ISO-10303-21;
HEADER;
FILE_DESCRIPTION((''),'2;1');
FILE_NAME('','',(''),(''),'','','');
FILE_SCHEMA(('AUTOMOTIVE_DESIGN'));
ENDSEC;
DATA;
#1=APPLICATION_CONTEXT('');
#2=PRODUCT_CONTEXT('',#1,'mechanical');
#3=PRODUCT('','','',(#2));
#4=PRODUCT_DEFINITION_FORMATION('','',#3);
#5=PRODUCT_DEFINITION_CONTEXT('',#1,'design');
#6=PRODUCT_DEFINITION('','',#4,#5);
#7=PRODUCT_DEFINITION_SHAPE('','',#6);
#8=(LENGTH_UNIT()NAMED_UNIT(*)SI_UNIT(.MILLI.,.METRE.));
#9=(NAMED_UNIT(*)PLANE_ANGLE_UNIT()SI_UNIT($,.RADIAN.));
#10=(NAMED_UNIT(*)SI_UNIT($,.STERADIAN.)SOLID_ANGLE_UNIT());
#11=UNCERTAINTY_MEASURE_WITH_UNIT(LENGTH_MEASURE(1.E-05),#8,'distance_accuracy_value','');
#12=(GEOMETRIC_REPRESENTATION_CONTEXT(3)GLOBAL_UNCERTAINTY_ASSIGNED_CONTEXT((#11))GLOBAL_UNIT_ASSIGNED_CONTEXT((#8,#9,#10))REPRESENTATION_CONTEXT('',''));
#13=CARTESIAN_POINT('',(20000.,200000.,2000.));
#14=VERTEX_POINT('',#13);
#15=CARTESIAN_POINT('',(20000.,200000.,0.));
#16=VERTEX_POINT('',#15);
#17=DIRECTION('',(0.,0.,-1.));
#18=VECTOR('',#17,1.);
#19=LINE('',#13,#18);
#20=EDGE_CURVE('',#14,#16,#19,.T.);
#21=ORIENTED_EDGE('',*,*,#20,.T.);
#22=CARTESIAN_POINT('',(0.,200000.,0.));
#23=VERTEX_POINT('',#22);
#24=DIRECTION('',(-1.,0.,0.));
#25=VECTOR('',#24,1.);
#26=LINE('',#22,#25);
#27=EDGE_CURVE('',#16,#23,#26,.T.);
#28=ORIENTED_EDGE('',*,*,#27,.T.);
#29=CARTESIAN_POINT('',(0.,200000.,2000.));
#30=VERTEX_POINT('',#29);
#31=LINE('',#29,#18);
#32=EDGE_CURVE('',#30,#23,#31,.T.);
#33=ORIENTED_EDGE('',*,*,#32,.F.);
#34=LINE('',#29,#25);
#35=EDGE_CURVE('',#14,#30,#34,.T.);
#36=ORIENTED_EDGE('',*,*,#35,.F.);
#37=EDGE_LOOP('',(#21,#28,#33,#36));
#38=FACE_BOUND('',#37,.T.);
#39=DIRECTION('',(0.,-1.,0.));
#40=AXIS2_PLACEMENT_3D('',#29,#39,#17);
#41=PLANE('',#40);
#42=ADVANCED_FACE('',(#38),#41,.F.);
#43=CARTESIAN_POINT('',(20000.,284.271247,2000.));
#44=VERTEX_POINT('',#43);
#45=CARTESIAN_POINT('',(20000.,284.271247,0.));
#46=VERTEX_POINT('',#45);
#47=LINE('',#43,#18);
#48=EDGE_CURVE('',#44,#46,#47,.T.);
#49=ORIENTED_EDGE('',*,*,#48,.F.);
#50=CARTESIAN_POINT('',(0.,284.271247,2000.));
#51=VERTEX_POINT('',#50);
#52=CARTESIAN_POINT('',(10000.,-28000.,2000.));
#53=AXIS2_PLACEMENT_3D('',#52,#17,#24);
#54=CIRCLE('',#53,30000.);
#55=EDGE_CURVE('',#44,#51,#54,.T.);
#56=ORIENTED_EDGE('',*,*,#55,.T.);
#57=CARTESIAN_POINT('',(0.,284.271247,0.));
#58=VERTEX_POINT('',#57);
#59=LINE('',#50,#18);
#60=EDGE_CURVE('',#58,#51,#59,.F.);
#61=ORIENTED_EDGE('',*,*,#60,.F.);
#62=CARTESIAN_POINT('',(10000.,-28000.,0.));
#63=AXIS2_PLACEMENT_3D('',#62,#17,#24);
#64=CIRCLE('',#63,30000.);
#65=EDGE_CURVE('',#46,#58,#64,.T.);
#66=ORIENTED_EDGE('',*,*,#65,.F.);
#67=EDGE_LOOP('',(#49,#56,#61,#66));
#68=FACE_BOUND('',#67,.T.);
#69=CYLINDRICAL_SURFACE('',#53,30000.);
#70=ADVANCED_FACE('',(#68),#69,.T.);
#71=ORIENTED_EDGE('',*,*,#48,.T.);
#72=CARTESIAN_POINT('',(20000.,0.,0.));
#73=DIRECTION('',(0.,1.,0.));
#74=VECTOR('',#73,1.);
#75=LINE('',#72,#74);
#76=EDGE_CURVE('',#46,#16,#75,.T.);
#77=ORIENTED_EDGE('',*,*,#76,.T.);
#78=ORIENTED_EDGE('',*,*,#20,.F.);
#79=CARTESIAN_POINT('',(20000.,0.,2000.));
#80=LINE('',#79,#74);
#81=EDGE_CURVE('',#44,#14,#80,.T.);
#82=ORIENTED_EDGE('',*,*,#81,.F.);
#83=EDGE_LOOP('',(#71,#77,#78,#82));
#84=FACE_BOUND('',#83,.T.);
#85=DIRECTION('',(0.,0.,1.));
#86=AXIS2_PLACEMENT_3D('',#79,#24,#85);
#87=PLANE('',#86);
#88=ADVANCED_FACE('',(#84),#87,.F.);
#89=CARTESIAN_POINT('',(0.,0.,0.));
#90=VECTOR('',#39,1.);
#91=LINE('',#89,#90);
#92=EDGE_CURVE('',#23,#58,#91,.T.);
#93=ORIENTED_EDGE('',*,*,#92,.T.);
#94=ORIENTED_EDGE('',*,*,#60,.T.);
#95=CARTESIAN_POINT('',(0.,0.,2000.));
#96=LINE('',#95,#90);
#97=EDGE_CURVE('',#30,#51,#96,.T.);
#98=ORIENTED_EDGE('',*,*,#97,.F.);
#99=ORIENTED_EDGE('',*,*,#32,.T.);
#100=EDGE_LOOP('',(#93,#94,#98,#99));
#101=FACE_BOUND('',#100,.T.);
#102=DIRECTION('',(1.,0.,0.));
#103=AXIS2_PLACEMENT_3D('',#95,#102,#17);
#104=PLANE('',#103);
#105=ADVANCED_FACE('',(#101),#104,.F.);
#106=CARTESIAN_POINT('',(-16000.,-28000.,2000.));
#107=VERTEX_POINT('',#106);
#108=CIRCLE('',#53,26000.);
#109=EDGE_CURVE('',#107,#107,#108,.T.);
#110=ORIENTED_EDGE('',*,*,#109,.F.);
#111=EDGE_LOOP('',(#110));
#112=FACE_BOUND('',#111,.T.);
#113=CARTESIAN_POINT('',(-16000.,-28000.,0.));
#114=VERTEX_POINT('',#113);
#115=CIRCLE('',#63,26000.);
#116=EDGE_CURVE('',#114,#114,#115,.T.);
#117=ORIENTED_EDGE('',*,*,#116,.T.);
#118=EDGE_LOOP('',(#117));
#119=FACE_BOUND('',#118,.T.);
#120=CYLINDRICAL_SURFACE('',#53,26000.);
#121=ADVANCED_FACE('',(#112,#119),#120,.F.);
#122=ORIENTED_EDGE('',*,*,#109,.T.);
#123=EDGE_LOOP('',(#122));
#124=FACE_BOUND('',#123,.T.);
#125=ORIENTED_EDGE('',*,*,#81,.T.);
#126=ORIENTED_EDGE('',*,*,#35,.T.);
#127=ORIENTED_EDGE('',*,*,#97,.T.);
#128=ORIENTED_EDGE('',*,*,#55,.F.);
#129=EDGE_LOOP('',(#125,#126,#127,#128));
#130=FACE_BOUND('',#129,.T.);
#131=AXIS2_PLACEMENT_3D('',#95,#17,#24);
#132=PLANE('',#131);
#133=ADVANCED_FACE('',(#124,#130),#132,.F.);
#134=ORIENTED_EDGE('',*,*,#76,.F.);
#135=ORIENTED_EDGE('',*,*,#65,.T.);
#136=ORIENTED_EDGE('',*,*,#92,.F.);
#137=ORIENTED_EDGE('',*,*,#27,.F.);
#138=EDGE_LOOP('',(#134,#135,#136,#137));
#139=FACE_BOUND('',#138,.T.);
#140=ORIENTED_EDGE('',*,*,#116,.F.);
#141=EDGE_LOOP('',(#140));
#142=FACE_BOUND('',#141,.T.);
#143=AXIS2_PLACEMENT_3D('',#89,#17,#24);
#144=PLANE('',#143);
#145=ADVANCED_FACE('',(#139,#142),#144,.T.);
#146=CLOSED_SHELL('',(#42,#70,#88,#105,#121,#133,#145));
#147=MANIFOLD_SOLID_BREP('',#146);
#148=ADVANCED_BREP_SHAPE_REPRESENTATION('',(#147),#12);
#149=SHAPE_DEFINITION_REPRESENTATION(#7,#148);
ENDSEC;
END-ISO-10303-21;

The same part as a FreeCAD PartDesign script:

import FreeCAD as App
import Part
import Sketcher

doc = App.newDocument("Part")
params = doc.addObject("Spreadsheet::Sheet", "Params")
for row, (alias, value) in enumerate([
    ("sketch1_width", "20000 mm"),
    ("sketch1_height", "200000 mm"),
    ("pad1_length", "2000 mm"),
    ("sketch2_diameter", "60000 mm"),
    ("sketch2_diameter2", "52000 mm"),
    ("pad2_length", "2000 mm"),
], start=1):
    params.set(f"A{row}", alias)
    params.set(f"B{row}", "=" + value)
    params.setAlias(f"B{row}", alias)

body = doc.addObject("PartDesign::Body", "Body")

# Sketch on XY plane
sketch1 = body.newObject("Sketcher::SketchObject", "Sketch")
sketch1.AttachmentSupport = (doc.getObject("XY_Plane"), [""])
sketch1.MapMode = "FlatFace"
sketch1.addGeometry([
    Part.LineSegment(App.Vector(0, 200000, 0), App.Vector(0, 0, 0)),
    Part.LineSegment(App.Vector(0, 0, 0), App.Vector(20000, 0, 0)),
    Part.LineSegment(App.Vector(20000, 0, 0), App.Vector(20000, 200000, 0)),
    Part.LineSegment(App.Vector(20000, 200000, 0), App.Vector(0, 200000, 0)),
], False)
sketch1.addConstraint([
    Sketcher.Constraint("Coincident", 0, 2, 1, 1),
    Sketcher.Constraint("Coincident", 1, 2, 2, 1),
    Sketcher.Constraint("Coincident", 2, 2, 3, 1),
    Sketcher.Constraint("Coincident", 3, 2, 0, 1),
    Sketcher.Constraint("Vertical", 0),
    Sketcher.Constraint("Horizontal", 1),
    Sketcher.Constraint("Vertical", 2),
    Sketcher.Constraint("Horizontal", 3),
    Sketcher.Constraint("Coincident", 0, 2, -1, 1),
    Sketcher.Constraint("DistanceX", 1, 1, 1, 2, 20000.0),
    Sketcher.Constraint("DistanceY", 0, 2, 0, 1, 200000.0),
])
sketch1.setExpression("Constraints[9]", "Params.sketch1_width")
sketch1.setExpression("Constraints[10]", "Params.sketch1_height")
pad1 = body.newObject("PartDesign::Pad", "Pad")
pad1.Profile = sketch1
pad1.setExpression("Length", "Params.pad1_length")

# Sketch on XY plane
sketch2 = body.newObject("Sketcher::SketchObject", "Sketch001")
sketch2.AttachmentSupport = (doc.getObject("XY_Plane"), [""])
sketch2.MapMode = "FlatFace"
sketch2.addGeometry([
    Part.Circle(App.Vector(10000, -28000, 0), App.Vector(0, 0, 1), 30000),
    Part.Circle(App.Vector(10000, -28000, 0), App.Vector(0, 0, 1), 26000),
], False)
sketch2.addConstraint([
    Sketcher.Constraint("Coincident", 1, 3, 0, 3),
    Sketcher.Constraint("Diameter", 0, 60000.0),
    Sketcher.Constraint("Diameter", 1, 52000.0),
    Sketcher.Constraint("DistanceX", -1, 1, 0, 3, 10000.0),
    Sketcher.Constraint("DistanceY", 0, 3, -1, 1, 28000.0),
])
sketch2.setExpression("Constraints[1]", "Params.sketch2_diameter")
sketch2.setExpression("Constraints[2]", "Params.sketch2_diameter2")
pad2 = body.newObject("PartDesign::Pad", "Pad001")
pad2.Profile = sketch2
pad2.setExpression("Length", "Params.pad2_length")

doc.recompute()
